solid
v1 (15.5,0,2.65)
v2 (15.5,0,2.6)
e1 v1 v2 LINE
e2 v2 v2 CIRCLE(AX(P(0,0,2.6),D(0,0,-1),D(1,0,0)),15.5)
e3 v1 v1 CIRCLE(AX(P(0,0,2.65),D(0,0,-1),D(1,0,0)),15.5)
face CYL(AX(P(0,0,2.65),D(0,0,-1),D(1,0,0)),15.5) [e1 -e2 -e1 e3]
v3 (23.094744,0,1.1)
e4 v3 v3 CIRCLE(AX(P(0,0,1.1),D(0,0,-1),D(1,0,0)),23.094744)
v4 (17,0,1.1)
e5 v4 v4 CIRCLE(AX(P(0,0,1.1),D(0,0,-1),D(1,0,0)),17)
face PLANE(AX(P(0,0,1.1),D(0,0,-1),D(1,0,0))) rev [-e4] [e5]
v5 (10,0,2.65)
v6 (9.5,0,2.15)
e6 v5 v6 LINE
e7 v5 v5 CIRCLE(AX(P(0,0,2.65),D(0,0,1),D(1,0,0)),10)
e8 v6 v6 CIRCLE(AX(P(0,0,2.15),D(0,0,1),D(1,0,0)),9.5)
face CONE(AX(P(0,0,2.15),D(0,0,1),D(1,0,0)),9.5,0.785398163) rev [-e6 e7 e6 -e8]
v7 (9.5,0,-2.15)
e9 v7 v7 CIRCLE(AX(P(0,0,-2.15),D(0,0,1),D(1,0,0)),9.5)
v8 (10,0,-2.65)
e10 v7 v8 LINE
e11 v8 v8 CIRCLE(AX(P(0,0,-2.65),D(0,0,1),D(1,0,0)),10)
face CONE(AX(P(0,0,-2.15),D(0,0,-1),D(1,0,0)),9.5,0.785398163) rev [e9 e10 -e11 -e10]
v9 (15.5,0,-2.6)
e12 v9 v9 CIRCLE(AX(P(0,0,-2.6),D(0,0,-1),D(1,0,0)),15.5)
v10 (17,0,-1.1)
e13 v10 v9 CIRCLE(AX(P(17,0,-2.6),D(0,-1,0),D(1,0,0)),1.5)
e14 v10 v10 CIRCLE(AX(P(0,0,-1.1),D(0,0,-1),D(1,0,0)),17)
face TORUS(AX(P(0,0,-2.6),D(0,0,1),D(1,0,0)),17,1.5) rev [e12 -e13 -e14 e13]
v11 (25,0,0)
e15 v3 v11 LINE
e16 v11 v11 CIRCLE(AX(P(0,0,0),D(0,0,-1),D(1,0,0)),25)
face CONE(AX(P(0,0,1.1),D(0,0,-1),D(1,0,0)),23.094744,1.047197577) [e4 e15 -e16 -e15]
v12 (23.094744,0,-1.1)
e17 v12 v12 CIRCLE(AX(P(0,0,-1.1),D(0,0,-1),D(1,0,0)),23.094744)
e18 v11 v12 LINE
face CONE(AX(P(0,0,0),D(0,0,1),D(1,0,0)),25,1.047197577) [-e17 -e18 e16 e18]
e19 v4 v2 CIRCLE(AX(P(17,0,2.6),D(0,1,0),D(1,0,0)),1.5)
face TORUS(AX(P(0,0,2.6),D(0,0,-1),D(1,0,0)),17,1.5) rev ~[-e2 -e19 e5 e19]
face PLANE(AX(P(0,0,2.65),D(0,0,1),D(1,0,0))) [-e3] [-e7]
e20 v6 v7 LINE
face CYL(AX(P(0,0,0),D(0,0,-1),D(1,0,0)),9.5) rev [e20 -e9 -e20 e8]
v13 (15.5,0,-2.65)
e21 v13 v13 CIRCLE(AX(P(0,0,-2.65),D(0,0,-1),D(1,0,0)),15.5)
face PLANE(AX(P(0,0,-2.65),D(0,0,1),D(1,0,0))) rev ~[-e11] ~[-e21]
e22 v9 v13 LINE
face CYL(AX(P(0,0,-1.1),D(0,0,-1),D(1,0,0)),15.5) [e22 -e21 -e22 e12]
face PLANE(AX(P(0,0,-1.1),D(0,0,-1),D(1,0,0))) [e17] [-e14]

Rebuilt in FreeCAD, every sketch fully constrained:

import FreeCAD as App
import Part
import Sketcher
from FreeCAD import Vector
Q = App.Units.Quantity


def edges_at(feature, points):
    """Names of the edges that pass closest to the given points."""
    edges = feature.Shape.Edges
    near = lambda p: min(range(len(edges)), key=lambda i: edges[i].distToShape(Part.Vertex(*p))[0])
    return sorted({f"Edge{near(p) + 1}" for p in points})

doc = App.newDocument("Part")
body = doc.addObject("PartDesign::Body", "Body")

sketch1 = body.newObject("Sketcher::SketchObject", "Sketch")
sketch1.AttachmentSupport = (doc.getObject("XY_Plane"), [""])
sketch1.MapMode = "FlatFace"
sketch1.addGeometry([
    Part.Circle(Vector(0, 0, 0), Vector(0, 0, 1), 25),
    Part.Circle(Vector(0, 0, 0), Vector(0, 0, 1), 10),
], False)
sketch1.addConstraint([
    Sketcher.Constraint("Coincident", 0, 3, -1, 1),
    Sketcher.Constraint("Coincident", 1, 3, -1, 1),
    Sketcher.Constraint("Diameter", 0, 50.0),
    Sketcher.Constraint("Diameter", 1, 19.0),
])
pad1 = body.newObject("PartDesign::Pad", "Pad")
pad1.Profile = sketch1
pad1.Length = 5.3
pad1.Midplane = True

sketch2 = body.newObject("Sketcher::SketchObject", "Sketch001")
sketch2.AttachmentSupport = (doc.getObject("XZ_Plane"), [""])
sketch2.MapMode = "FlatFace"
sketch2.addGeometry([
    Part.LineSegment(Vector(42.9, 12.5, 0), Vector(15.5, 2.6, 0)),
    Part.LineSegment(Vector(15.5, 2.6, 0), Vector(15.5, 1.1, 0)),
    Part.LineSegment(Vector(15.5, 1.1, 0), Vector(23.1, 1.1, 0)),
    Part.LineSegment(Vector(23.1, 1.1, 0), Vector(25, 0, 0)),
    Part.LineSegment(Vector(25, 0, 0), Vector(23.1, -1.1, 0)),
    Part.LineSegment(Vector(23.1, -1.1, 0), Vector(15.5, -1.1, 0)),
    Part.LineSegment(Vector(15.5, -1.1, 0), Vector(15.5, -2.7, 0)),
    Part.LineSegment(Vector(15.5, -2.7, 0), Vector(42.9, -11.6, 0)),
    Part.LineSegment(Vector(42.9, -11.6, 0), Vector(42.9, 12.5, 0)),
], False)
sketch2.addConstraint([
    Sketcher.Constraint("Coincident", 0, 2, 1, 1),
    Sketcher.Constraint("Coincident", 1, 2, 2, 1),
    Sketcher.Constraint("Coincident", 2, 2, 3, 1),
    Sketcher.Constraint("Coincident", 3, 2, 4, 1),
    Sketcher.Constraint("Coincident", 4, 2, 5, 1),
    Sketcher.Constraint("Coincident", 5, 2, 6, 1),
    Sketcher.Constraint("Coincident", 6, 2, 7, 1),
    Sketcher.Constraint("Coincident", 7, 2, 8, 1),
    Sketcher.Constraint("Coincident", 8, 2, 0, 1),
    Sketcher.Constraint("Vertical", 1),
    Sketcher.Constraint("Horizontal", 2),
    Sketcher.Constraint("Horizontal", 5),
    Sketcher.Constraint("Vertical", 6),
    Sketcher.Constraint("Vertical", 8),
    Sketcher.Constraint("Symmetric", 2, 2, 4, 2, -1),
    Sketcher.Constraint("PointOnObject", 3, 2, -1),
    Sketcher.Constraint("Vertical", 1, 2, 5, 2),
    Sketcher.Constraint("Angle", 3, Q("-29.999999 deg")),
    Sketcher.Constraint("DistanceX", -1, 1, 3, 2, 25.0),
    Sketcher.Constraint("Distance", 3, 2.2),
    Sketcher.Constraint("DistanceY", 1, 2, 1, 1, 1.55),
    Sketcher.Constraint("DistanceX", -1, 1, 0, 2, 15.5),
    Sketcher.Constraint("DistanceY", 8, 1, 8, 2, 24.110391),
    Sketcher.Constraint("DistanceX", 4, 2, 7, 2, 19.7773),
    Sketcher.Constraint("Distance", 0, 29.086491),
    Sketcher.Constraint("DistanceY", 6, 2, 6, 1, 1.572665),
])
groove = body.newObject("PartDesign::Groove", "Groove")
groove.Profile = sketch2
groove.ReferenceAxis = (sketch2, ["V_Axis"])
groove.Angle = 360
doc.recompute()

fillet = body.newObject("PartDesign::Fillet", "Fillet")
fillet.Base = (groove, edges_at(groove, [(-15.5, 0, 1.1), (-15.5, 0, -1.1)]))
fillet.Radius = 1.5
doc.recompute()

chamfer = body.newObject("PartDesign::Chamfer", "Chamfer")
chamfer.Base = (fillet, edges_at(fillet, [(-9.5, 0, 2.65), (-9.5, 0, -2.65)]))
chamfer.Size = 0.5

doc.recompute()
